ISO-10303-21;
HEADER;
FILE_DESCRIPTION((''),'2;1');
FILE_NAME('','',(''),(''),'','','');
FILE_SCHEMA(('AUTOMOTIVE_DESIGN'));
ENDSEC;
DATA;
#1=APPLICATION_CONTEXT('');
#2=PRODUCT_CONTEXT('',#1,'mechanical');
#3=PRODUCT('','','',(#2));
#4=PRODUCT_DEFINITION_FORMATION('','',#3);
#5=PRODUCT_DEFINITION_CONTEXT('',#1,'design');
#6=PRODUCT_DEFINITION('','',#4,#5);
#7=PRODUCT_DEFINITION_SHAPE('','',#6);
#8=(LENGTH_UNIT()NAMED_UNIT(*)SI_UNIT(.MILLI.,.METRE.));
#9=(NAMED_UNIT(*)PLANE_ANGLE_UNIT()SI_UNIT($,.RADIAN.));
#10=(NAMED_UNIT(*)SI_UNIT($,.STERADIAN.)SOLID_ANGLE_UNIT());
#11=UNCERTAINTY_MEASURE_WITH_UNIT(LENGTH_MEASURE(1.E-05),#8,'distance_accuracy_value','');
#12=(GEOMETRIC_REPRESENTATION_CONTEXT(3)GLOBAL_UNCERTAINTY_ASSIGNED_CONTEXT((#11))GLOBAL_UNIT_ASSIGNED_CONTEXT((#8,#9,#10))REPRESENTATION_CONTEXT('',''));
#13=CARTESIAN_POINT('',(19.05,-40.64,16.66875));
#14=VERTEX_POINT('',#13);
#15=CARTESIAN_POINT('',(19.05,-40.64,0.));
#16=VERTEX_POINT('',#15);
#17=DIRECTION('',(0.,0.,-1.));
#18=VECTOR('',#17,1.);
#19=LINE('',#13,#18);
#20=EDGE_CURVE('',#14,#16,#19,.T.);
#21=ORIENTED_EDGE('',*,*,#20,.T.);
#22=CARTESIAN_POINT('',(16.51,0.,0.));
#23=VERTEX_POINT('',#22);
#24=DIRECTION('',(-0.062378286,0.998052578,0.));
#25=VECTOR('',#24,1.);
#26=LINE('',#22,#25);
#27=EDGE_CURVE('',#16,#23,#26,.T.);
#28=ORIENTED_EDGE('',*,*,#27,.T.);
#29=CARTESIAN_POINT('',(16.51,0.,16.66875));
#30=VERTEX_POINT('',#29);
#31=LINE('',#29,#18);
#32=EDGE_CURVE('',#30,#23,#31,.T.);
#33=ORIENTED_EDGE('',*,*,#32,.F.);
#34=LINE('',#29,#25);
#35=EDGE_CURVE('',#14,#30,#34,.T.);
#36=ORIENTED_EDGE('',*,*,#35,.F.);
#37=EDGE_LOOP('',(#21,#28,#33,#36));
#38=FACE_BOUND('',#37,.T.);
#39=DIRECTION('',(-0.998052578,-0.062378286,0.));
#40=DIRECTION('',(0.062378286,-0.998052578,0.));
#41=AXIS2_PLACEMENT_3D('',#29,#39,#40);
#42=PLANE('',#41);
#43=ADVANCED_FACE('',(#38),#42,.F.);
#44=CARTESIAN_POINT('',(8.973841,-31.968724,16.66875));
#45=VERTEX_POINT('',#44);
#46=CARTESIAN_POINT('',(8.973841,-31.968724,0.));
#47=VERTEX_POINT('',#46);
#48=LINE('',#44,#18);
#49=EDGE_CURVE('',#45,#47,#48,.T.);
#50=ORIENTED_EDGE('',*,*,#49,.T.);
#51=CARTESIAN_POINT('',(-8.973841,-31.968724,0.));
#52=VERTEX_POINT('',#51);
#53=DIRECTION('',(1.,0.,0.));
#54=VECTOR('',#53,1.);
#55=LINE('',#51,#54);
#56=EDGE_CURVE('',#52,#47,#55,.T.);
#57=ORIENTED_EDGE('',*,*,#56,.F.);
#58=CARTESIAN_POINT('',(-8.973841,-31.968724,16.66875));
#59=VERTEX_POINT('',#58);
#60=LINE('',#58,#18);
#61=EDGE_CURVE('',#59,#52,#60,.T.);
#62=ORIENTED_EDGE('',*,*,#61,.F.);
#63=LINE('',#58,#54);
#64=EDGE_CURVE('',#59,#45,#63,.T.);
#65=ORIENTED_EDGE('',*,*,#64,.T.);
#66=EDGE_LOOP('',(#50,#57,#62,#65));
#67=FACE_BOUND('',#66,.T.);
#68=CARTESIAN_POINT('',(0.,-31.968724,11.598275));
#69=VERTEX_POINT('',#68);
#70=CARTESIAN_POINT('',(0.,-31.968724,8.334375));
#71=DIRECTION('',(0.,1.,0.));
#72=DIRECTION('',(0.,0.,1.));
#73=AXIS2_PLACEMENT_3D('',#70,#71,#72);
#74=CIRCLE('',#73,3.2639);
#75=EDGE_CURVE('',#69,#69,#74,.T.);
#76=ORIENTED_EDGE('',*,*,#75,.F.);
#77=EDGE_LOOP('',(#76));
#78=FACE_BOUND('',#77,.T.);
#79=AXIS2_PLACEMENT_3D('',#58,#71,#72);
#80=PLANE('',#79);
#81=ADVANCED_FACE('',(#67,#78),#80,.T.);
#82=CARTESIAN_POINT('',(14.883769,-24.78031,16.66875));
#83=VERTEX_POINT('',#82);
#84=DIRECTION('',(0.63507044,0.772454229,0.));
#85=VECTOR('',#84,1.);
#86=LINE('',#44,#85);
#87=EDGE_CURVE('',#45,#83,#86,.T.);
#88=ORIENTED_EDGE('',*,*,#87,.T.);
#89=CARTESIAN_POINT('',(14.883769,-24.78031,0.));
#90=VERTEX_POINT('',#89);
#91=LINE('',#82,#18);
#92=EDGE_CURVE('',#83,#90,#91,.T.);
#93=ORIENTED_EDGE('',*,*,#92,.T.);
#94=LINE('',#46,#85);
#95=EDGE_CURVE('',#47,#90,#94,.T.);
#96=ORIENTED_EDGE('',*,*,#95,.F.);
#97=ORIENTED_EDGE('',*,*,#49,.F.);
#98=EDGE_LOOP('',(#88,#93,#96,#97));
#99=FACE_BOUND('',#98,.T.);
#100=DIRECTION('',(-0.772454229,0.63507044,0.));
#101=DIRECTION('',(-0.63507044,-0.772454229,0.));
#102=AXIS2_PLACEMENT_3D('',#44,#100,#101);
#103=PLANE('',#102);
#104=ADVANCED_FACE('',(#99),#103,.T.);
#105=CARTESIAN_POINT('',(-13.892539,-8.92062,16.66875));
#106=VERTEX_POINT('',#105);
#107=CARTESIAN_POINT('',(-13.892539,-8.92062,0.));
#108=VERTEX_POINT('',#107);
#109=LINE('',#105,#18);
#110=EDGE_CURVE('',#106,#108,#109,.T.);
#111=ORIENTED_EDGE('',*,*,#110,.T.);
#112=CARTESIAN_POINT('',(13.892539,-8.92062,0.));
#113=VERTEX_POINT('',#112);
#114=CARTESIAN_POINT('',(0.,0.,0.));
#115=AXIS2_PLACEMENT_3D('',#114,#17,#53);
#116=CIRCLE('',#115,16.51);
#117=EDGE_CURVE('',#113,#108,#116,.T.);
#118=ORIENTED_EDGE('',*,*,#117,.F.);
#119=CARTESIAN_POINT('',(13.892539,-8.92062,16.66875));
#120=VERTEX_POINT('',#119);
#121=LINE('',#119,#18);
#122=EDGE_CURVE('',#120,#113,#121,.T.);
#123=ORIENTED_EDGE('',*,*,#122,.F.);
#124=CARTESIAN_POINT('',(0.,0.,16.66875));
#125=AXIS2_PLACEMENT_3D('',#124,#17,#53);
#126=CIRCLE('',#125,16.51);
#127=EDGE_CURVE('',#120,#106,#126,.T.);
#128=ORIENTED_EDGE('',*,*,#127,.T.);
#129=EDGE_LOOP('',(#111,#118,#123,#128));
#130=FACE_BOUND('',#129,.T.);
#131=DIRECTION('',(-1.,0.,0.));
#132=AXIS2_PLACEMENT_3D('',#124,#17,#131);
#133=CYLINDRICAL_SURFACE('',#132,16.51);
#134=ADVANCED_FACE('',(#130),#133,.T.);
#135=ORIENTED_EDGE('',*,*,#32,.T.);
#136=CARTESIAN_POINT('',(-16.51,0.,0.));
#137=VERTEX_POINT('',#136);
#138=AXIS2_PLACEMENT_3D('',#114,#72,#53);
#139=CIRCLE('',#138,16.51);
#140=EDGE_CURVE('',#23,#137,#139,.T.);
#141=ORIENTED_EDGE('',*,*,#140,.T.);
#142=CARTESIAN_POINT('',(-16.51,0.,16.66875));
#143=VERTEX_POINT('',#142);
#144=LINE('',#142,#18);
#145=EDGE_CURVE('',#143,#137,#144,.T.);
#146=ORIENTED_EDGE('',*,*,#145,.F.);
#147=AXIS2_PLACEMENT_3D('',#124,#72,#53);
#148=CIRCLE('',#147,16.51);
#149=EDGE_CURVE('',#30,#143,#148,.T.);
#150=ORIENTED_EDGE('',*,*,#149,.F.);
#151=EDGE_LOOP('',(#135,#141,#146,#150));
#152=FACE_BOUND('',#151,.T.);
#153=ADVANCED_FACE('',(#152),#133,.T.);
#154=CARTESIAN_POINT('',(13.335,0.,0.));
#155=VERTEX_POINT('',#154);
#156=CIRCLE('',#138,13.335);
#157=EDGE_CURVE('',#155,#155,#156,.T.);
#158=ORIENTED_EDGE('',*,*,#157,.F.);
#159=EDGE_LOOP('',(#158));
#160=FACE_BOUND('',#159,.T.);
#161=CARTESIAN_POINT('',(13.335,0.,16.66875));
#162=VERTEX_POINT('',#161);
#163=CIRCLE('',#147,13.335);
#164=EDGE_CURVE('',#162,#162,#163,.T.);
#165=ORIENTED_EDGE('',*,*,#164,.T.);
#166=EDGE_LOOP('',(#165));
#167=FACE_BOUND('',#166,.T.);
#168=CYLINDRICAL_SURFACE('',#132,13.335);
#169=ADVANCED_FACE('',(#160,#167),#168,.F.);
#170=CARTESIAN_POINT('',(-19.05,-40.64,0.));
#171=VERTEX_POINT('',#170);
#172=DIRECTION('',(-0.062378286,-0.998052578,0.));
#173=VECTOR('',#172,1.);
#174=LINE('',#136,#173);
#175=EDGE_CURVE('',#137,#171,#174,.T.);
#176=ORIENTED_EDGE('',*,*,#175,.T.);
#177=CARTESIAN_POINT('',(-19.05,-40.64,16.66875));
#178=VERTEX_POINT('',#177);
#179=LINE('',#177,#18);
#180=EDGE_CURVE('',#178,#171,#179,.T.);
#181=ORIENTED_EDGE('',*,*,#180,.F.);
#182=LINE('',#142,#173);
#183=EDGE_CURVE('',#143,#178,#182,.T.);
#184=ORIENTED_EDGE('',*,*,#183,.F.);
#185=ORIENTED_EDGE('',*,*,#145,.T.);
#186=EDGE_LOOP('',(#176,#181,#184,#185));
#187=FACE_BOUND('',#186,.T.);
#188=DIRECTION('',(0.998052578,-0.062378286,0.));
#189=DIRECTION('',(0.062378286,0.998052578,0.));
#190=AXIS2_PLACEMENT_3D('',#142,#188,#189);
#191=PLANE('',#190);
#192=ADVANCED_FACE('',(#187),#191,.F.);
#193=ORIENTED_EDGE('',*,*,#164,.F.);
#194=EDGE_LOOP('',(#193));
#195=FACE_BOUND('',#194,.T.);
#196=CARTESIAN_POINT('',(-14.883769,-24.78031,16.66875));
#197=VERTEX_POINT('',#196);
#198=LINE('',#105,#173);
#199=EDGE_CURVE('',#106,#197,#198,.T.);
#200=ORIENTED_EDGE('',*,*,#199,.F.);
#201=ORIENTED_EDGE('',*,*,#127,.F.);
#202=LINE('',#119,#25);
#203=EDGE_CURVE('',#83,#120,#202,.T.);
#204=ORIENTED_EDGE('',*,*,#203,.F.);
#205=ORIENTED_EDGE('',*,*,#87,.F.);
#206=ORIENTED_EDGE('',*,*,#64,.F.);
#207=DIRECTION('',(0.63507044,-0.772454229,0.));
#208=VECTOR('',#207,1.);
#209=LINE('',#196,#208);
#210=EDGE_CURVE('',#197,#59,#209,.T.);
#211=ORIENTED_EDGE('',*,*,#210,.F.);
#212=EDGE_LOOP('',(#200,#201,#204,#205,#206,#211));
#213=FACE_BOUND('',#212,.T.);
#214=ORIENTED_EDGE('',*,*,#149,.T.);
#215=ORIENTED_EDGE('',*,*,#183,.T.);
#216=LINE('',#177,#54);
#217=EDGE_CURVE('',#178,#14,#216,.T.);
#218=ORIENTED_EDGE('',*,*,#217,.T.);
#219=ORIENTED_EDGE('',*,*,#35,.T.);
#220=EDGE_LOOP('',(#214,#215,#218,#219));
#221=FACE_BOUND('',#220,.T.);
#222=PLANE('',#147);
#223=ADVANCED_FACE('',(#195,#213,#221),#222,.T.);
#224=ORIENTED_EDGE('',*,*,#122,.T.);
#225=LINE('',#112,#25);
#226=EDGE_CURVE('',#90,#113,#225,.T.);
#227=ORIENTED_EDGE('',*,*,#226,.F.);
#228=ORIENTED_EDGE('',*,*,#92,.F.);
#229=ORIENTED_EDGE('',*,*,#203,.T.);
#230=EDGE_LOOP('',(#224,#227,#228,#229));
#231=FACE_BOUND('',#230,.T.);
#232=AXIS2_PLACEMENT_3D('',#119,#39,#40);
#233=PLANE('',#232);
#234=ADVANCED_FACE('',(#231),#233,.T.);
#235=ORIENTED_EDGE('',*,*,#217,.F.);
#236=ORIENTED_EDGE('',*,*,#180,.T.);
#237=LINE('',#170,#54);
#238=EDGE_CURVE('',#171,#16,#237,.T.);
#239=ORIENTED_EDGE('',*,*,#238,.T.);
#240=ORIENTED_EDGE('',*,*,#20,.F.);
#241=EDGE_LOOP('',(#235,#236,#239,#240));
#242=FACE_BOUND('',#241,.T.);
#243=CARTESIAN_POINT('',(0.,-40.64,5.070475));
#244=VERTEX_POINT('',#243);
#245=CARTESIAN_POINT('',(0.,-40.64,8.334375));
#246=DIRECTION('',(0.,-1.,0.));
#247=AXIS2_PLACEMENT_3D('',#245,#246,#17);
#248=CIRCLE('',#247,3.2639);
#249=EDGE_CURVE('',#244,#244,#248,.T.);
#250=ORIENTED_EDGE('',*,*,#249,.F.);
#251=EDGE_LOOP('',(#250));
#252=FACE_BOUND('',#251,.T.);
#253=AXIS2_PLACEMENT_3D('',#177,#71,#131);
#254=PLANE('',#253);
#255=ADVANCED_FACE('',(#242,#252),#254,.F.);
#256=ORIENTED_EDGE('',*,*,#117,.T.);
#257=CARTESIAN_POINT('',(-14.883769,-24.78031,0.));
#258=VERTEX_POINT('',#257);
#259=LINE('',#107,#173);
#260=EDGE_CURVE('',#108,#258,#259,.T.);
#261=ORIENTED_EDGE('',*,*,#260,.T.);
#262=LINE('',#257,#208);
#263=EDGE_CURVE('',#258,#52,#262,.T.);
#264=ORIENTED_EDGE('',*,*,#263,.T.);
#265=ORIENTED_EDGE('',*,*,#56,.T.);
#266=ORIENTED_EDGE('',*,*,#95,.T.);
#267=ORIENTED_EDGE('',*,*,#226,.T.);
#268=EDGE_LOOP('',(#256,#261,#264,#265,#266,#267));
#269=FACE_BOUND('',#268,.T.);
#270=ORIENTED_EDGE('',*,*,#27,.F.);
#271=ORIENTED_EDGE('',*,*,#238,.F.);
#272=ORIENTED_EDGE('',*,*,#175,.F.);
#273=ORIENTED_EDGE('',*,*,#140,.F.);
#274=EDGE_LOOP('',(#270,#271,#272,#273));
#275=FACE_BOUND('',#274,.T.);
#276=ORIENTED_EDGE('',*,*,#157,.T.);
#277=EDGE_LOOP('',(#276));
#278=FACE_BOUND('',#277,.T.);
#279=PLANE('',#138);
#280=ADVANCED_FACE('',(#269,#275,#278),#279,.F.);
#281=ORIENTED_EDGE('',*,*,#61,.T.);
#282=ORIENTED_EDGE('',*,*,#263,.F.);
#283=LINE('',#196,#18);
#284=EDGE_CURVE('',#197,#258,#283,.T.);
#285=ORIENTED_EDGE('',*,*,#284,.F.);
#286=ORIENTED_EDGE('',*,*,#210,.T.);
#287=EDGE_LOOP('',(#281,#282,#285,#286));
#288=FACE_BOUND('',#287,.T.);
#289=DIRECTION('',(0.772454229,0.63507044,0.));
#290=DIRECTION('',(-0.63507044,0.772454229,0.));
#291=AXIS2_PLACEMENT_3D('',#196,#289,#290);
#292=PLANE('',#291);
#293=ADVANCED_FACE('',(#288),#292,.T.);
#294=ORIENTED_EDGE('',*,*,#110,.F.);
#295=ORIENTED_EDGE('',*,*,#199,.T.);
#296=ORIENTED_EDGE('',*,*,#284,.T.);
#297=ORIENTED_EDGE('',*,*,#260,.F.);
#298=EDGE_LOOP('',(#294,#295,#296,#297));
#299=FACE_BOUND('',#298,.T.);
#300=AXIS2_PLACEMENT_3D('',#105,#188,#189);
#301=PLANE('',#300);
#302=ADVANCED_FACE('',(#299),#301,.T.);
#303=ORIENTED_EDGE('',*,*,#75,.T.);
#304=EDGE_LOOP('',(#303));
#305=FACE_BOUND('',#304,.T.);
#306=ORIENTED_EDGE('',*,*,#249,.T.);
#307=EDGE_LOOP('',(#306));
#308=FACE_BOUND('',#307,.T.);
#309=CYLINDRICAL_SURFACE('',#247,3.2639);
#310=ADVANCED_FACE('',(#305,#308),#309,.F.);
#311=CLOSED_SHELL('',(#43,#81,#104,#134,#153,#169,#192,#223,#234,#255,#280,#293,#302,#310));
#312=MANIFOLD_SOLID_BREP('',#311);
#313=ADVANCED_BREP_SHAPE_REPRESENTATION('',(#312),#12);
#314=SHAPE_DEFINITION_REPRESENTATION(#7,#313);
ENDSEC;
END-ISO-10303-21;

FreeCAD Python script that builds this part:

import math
import FreeCAD as App
import Part
import Sketcher
from FreeCAD import Vector
Q = App.Units.Quantity

doc = App.newDocument("Part")
params = doc.addObject("Spreadsheet::Sheet", "Params")
for row, (alias, value) in enumerate([
    ("sketch1_diameter", "1.05 in"),
    ("sketch1_radius", "0.65 in"),
    ("sketch1_width", "1.5 in"),
    ("pad1_length", "0.65625 in"),
    ("sketch2_diameter", "0.257 in"),
    ("hole_diameter", "0.257 in"),
    ("hole_depth", "8.671276 mm"),
], start=1):
    params.set(f"A{row}", alias)
    params.set(f"B{row}", "=" + value)
    params.setAlias(f"B{row}", alias)

body = doc.addObject("PartDesign::Body", "Body")

# Sketch on XY plane
sketch1 = body.newObject("Sketcher::SketchObject", "Sketch")
sketch1.AttachmentSupport = (doc.getObject("XY_Plane"), [""])
sketch1.MapMode = "FlatFace"
sketch1.addGeometry(Part.LineSegment(Vector(-19, -41, 0), Vector(19, -41, 0)), False)
sketch1.addGeometry(Part.LineSegment(Vector(19, -41, 0), Vector(17, 0, 0)), False)
sketch1.addGeometry(Part.ArcOfCircle(Part.Circle(Vector(0, 0, 0), Vector(0, 0, 1), 17), math.radians(0), math.radians(180)), False)
sketch1.addGeometry(Part.LineSegment(Vector(-17, 0, 0), Vector(-19, -41, 0)), False)
sketch1.addGeometry(Part.LineSegment(Vector(-15, -25, 0), Vector(-14, -9, 0)), False)
sketch1.addGeometry(Part.ArcOfCircle(Part.Circle(Vector(0, 0, 0), Vector(0, 0, 1), 17), math.radians(-147), math.radians(-33)), False)
sketch1.addGeometry(Part.LineSegment(Vector(14, -9, 0), Vector(15, -25, 0)), False)
sketch1.addGeometry(Part.LineSegment(Vector(15, -25, 0), Vector(9, -32, 0)), False)
sketch1.addGeometry(Part.LineSegment(Vector(9, -32, 0), Vector(-9, -32, 0)), False)
sketch1.addGeometry(Part.LineSegment(Vector(-9, -32, 0), Vector(-15, -25, 0)), False)
sketch1.addGeometry(Part.Circle(Vector(0, 0, 0), Vector(0, 0, 1), 13), False)
sketch1.addConstraint(Sketcher.Constraint("Coincident", 0, 2, 1, 1))
sketch1.addConstraint(Sketcher.Constraint("Coincident", 1, 2, 2, 1))
sketch1.addConstraint(Sketcher.Constraint("Coincident", 2, 2, 3, 1))
sketch1.addConstraint(Sketcher.Constraint("Coincident", 3, 2, 0, 1))
sketch1.addConstraint(Sketcher.Constraint("Coincident", 4, 2, 5, 1))
sketch1.addConstraint(Sketcher.Constraint("Coincident", 5, 2, 6, 1))
sketch1.addConstraint(Sketcher.Constraint("Coincident", 6, 2, 7, 1))
sketch1.addConstraint(Sketcher.Constraint("Coincident", 7, 2, 8, 1))
sketch1.addConstraint(Sketcher.Constraint("Coincident", 8, 2, 9, 1))
sketch1.addConstraint(Sketcher.Constraint("Coincident", 9, 2, 4, 1))
sketch1.addConstraint(Sketcher.Constraint("Horizontal", 0))
sketch1.addConstraint(Sketcher.Constraint("Horizontal", 8))
sketch1.addConstraint(Sketcher.Constraint("Coincident", 2, 3, -1, 1))
sketch1.addConstraint(Sketcher.Constraint("Coincident", 5, 3, -1, 1))
sketch1.addConstraint(Sketcher.Constraint("Coincident", 10, 3, -1, 1))
sketch1.addConstraint(Sketcher.Constraint("Equal", 2, 5))
sketch1.addConstraint(Sketcher.Constraint("Symmetric", 6, 2, 9, 2, -2))
sketch1.addConstraint(Sketcher.Constraint("PointOnObject", 1, 2, -1))
sketch1.addConstraint(Sketcher.Constraint("PointOnObject", 2, 2, -1))
sketch1.addConstraint(Sketcher.Constraint("Parallel", 3, 4))
sketch1.addConstraint(Sketcher.Constraint("Parallel", 1, 6))
sketch1.addConstraint(Sketcher.Constraint("Horizontal", 4, 2, 5, 2))
sketch1.addConstraint(Sketcher.Constraint("Equal", 7, 9))
sketch1.addConstraint(Sketcher.Constraint("Diameter", 10, Q("1.05 in")))
sketch1.addConstraint(Sketcher.Constraint("Radius", 2, Q("0.65 in")))
sketch1.addConstraint(Sketcher.Constraint("DistanceX", 0, 1, 0, 2, Q("1.5 in")))
sketch1.addConstraint(Sketcher.Constraint("DistanceY", 0, 2, -1, 1, Q("1.6 in")))
sketch1.addConstraint(Sketcher.Constraint("DistanceX", 8, 2, 8, 1, 17.947682))
sketch1.addConstraint(Sketcher.Constraint("Distance", 7, 9.305942))
sketch1.addConstraint(Sketcher.Constraint("DistanceX", 4, 2, -1, 1, 13.892539))
sketch1.addConstraint(Sketcher.Constraint("DistanceX", -1, 1, 6, 2, 14.883769))
sketch1.setExpression("Constraints[23]", "Params.sketch1_diameter")
sketch1.setExpression("Constraints[24]", "Params.sketch1_radius")
sketch1.setExpression("Constraints[25]", "Params.sketch1_width")
pad1 = body.newObject("PartDesign::Pad", "Pad")
pad1.Profile = sketch1
pad1.setExpression("Length", "Params.pad1_length")

# Sketch on XZ plane
sketch2 = body.newObject("Sketcher::SketchObject", "Sketch001")
sketch2.AttachmentSupport = (doc.getObject("XZ_Plane"), [""])
sketch2.MapMode = "FlatFace"
sketch2.AttachmentOffset = App.Placement(Vector(0, 0, 1.6 * 25.4), App.Rotation())
sketch2.addGeometry(Part.Circle(Vector(0, 8.3, 0), Vector(0, 0, 1), 3.3), False)
sketch2.addConstraint(Sketcher.Constraint("PointOnObject", 0, 3, -2))
sketch2.addConstraint(Sketcher.Constraint("Diameter", 0, Q("0.257 in")))
sketch2.addConstraint(Sketcher.Constraint("DistanceY", -1, 1, 0, 3, Q("0.328125 in")))
sketch2.setExpression("Constraints[1]", "Params.sketch2_diameter")
doc.recompute()
hole = body.newObject("PartDesign::Hole", "Hole")
hole.Profile = sketch2
hole.ThreadType = "None"
hole.setExpression("Diameter", "Params.hole_diameter")
hole.DepthType = "Dimension"
hole.setExpression("Depth", "Params.hole_depth")
hole.DrillPoint = "Flat"

doc.recompute()
